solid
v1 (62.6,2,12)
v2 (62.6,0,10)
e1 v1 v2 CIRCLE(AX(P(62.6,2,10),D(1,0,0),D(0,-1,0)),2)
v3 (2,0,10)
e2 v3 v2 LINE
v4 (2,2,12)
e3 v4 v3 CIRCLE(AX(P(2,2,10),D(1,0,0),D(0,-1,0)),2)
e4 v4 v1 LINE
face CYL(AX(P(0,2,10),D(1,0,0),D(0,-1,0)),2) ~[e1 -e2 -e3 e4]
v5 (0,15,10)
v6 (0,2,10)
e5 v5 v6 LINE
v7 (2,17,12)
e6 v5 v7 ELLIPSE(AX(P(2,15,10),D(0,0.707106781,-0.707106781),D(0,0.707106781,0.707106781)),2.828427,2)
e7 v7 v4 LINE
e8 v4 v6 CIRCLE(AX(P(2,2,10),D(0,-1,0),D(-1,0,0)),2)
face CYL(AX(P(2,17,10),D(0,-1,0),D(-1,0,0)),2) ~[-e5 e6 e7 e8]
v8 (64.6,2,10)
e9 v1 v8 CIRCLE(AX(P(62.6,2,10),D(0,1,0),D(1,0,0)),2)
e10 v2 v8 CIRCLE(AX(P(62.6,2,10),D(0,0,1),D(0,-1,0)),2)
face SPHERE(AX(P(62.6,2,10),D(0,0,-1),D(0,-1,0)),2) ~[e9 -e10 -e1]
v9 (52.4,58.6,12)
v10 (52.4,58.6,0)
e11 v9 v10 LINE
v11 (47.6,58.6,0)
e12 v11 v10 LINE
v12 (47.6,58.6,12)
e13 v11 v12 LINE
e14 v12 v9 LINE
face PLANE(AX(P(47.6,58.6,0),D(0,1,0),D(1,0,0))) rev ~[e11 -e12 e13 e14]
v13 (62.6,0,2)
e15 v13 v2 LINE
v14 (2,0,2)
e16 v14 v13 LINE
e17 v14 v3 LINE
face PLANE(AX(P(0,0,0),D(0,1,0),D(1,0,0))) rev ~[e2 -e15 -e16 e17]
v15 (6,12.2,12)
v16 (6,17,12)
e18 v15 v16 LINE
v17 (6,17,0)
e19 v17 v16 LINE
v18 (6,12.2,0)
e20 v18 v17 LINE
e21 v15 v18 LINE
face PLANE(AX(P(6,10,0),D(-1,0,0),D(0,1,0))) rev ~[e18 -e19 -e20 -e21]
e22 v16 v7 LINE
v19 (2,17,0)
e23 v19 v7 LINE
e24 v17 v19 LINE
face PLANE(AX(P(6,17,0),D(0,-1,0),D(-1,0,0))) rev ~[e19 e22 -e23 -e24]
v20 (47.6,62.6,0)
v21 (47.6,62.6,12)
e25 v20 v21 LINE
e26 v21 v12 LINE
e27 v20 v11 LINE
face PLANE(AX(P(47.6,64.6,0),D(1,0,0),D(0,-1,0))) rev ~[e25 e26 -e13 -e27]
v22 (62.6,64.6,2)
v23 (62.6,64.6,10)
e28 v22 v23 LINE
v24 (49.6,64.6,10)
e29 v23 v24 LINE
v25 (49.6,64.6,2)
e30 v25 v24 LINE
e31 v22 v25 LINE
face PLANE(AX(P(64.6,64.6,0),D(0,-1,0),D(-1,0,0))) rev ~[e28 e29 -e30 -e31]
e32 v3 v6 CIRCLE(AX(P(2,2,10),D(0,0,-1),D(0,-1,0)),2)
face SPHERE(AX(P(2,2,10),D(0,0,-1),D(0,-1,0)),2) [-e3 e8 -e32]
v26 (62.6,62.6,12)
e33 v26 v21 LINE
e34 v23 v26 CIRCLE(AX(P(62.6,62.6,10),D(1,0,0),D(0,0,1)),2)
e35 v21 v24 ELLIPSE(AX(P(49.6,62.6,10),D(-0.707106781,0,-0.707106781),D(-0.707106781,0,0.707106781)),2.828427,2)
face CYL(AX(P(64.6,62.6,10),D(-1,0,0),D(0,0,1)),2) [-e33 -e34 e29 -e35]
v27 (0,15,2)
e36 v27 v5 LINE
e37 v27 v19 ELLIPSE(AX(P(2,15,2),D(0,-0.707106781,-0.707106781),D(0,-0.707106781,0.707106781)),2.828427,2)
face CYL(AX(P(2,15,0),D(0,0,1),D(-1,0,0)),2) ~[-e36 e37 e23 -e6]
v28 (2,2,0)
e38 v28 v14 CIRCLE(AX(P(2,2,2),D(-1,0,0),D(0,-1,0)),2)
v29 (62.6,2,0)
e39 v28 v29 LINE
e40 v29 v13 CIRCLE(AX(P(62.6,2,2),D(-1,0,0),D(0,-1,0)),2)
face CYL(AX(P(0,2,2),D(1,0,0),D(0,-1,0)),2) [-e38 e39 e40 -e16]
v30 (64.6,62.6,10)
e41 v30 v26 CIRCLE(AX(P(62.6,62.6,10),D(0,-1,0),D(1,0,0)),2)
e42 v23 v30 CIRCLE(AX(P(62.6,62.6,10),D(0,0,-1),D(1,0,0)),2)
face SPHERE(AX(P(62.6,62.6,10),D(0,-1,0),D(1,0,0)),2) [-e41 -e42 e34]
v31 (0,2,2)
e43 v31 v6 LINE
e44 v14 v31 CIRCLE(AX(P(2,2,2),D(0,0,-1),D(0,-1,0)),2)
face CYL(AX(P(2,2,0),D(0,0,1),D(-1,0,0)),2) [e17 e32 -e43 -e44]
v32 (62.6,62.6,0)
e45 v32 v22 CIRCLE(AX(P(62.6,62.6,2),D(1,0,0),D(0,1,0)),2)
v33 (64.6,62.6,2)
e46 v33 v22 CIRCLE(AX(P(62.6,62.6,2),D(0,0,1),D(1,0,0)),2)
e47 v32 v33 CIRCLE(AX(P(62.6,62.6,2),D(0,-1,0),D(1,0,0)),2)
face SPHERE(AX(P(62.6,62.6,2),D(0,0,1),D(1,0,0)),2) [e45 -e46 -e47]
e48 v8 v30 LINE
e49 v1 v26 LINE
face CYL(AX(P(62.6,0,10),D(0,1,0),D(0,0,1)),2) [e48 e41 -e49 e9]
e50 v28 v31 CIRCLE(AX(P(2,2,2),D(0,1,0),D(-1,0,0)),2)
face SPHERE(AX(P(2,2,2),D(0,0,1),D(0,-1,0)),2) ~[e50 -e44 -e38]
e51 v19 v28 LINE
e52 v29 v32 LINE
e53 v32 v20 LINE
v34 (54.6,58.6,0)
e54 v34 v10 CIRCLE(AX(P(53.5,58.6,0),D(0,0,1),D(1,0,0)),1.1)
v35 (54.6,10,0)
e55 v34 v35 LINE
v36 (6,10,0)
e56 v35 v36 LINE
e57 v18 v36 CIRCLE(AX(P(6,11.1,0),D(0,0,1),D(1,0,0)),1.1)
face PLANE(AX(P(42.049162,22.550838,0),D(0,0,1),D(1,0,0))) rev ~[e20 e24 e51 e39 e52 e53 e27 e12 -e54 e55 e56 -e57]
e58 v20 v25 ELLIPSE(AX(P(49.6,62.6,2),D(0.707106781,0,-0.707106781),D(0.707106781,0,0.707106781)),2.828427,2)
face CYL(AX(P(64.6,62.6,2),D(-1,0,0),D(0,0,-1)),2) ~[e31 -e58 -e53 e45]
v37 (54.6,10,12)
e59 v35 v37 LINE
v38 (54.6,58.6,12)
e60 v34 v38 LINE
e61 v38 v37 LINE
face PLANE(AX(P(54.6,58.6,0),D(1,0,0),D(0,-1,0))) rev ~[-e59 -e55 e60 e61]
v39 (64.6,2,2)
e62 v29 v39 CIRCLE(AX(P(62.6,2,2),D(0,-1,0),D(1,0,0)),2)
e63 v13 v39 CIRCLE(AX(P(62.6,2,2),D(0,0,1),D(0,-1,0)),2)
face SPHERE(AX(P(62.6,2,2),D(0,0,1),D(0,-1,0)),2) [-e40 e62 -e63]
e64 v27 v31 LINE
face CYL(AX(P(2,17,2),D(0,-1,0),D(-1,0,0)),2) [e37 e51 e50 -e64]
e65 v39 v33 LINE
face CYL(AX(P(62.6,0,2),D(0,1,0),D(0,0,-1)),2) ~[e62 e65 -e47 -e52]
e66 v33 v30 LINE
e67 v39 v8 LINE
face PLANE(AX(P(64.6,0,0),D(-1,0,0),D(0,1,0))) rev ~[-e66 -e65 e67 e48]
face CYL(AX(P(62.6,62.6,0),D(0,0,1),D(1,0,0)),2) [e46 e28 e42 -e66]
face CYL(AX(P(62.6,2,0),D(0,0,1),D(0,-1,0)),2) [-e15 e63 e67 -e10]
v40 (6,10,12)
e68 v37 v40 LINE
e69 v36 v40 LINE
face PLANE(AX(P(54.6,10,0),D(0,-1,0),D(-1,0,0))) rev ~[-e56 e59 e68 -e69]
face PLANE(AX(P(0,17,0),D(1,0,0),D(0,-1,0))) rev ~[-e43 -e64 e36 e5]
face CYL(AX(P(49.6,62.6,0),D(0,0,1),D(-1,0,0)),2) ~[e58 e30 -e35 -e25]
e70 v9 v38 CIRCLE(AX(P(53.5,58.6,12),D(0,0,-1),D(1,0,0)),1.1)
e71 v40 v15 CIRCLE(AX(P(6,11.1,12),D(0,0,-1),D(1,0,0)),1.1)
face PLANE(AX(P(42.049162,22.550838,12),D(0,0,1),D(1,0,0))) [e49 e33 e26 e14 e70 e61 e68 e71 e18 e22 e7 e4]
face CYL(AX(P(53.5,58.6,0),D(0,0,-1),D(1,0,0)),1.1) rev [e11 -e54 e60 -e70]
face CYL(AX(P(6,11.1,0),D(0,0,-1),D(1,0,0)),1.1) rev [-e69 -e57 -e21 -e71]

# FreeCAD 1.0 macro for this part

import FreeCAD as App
import Part
import Sketcher
from FreeCAD import Vector


def edges_at(feature, points):
    """Names of the edges that pass closest to the given points."""
    edges = feature.Shape.Edges
    near = lambda p: min(range(len(edges)), key=lambda i: edges[i].distToShape(Part.Vertex(*p))[0])
    return sorted({f"Edge{near(p) + 1}" for p in points})


def add_polygon(sketch, points):
    """Adds a closed chain of lines whose ends are joined by coincident constraints."""
    first, n = sketch.GeometryCount, len(points)
    for a, b in zip(points, points[1:] + points[:1]):
        sketch.addGeometry(Part.LineSegment(App.Vector(*a, 0), App.Vector(*b, 0)), False)
    for i in range(n):
        sketch.addConstraint(Sketcher.Constraint("Coincident", first + i, 2, first + (i + 1) % n, 1))

doc = App.newDocument("Part")
body = doc.addObject("PartDesign::Body", "Body")

sketch1 = doc.addObject("Sketcher::SketchObject", "Sketch")
body.addObject(sketch1)
sketch1.AttachmentSupport = (doc.XY_Plane, [""])
sketch1.MapMode = "FlatFace"
add_polygon(sketch1, [(0, 17), (0, 0), (64.6, 0), (64.6, 64.6), (47.6, 64.6), (47.6, 58.6), (54.6, 58.6), (54.6, 10), (6, 10), (6, 17)])
sketch1.addConstraint([
    Sketcher.Constraint("Vertical", 0),
    Sketcher.Constraint("Horizontal", 1),
    Sketcher.Constraint("Vertical", 2),
    Sketcher.Constraint("Horizontal", 3),
    Sketcher.Constraint("Vertical", 4),
    Sketcher.Constraint("Horizontal", 5),
    Sketcher.Constraint("Vertical", 6),
    Sketcher.Constraint("Horizontal", 7),
    Sketcher.Constraint("Vertical", 8),
    Sketcher.Constraint("Horizontal", 9),
    Sketcher.Constraint("Coincident", 0, 2, -1, 1),
    Sketcher.Constraint("Equal", 3, 0),
    Sketcher.Constraint("Equal", 1, 2),
    Sketcher.Constraint("Equal", 9, 4),
    Sketcher.Constraint("Equal", 7, 6),
    Sketcher.Constraint("DistanceX", 3, 2, 3, 1, 17.0),
    Sketcher.Constraint("DistanceX", 5, 1, 5, 2, 7.0),
    Sketcher.Constraint("DistanceX", 9, 2, 9, 1, 6.0),
    Sketcher.Constraint("DistanceX", 1, 1, 1, 2, 64.6),
])
pad1 = doc.addObject("PartDesign::Pad", "Pad")
body.addObject(pad1)
pad1.Profile = sketch1
pad1.Length = 12

sketch2 = doc.addObject("Sketcher::SketchObject", "Sketch001")
body.addObject(sketch2)
sketch2.AttachmentSupport = (doc.XY_Plane, [""])
sketch2.MapMode = "FlatFace"
sketch2.addGeometry([
    Part.Circle(Vector(6, 11.1, 0), Vector(0, 0, 1), 1.1),
    Part.Circle(Vector(53.5, 58.6, 0), Vector(0, 0, 1), 1.1),
], False)
sketch2.addConstraint([
    Sketcher.Constraint("Equal", 0, 1),
    Sketcher.Constraint("Diameter", 0, 2.2),
    Sketcher.Constraint("DistanceX", -1, 1, 0, 3, 6.0),
    Sketcher.Constraint("DistanceY", -1, 1, 0, 3, 11.1),
    Sketcher.Constraint("DistanceX", -1, 1, 1, 3, 53.5),
    Sketcher.Constraint("DistanceY", -1, 1, 1, 3, 58.6),
])
pocket1 = doc.addObject("PartDesign::Pocket", "Pocket")
body.addObject(pocket1)
pocket1.Profile = sketch2
pocket1.Type = "ThroughAll"
pocket1.Reversed = True
doc.recompute()

fillet = doc.addObject("PartDesign::Fillet", "Fillet")
body.addObject(fillet)
fillet.Base = (pocket1, edges_at(pocket1, [
    (0, 0, 6),
    (64.6, 0, 6),
    (32.3, 0, 0),
    (32.3, 0, 12),
    (0, 17, 6),
    (0, 8.5, 0),
    (0, 8.5, 12),
    (64.6, 32.3, 12),
    (64.6, 64.6, 6),
    (64.6, 32.3, 0),
    (47.6, 64.6, 6),
    (56.1, 64.6, 0),
    (56.1, 64.6, 12),
]))
fillet.Radius = 2

doc.recompute()
